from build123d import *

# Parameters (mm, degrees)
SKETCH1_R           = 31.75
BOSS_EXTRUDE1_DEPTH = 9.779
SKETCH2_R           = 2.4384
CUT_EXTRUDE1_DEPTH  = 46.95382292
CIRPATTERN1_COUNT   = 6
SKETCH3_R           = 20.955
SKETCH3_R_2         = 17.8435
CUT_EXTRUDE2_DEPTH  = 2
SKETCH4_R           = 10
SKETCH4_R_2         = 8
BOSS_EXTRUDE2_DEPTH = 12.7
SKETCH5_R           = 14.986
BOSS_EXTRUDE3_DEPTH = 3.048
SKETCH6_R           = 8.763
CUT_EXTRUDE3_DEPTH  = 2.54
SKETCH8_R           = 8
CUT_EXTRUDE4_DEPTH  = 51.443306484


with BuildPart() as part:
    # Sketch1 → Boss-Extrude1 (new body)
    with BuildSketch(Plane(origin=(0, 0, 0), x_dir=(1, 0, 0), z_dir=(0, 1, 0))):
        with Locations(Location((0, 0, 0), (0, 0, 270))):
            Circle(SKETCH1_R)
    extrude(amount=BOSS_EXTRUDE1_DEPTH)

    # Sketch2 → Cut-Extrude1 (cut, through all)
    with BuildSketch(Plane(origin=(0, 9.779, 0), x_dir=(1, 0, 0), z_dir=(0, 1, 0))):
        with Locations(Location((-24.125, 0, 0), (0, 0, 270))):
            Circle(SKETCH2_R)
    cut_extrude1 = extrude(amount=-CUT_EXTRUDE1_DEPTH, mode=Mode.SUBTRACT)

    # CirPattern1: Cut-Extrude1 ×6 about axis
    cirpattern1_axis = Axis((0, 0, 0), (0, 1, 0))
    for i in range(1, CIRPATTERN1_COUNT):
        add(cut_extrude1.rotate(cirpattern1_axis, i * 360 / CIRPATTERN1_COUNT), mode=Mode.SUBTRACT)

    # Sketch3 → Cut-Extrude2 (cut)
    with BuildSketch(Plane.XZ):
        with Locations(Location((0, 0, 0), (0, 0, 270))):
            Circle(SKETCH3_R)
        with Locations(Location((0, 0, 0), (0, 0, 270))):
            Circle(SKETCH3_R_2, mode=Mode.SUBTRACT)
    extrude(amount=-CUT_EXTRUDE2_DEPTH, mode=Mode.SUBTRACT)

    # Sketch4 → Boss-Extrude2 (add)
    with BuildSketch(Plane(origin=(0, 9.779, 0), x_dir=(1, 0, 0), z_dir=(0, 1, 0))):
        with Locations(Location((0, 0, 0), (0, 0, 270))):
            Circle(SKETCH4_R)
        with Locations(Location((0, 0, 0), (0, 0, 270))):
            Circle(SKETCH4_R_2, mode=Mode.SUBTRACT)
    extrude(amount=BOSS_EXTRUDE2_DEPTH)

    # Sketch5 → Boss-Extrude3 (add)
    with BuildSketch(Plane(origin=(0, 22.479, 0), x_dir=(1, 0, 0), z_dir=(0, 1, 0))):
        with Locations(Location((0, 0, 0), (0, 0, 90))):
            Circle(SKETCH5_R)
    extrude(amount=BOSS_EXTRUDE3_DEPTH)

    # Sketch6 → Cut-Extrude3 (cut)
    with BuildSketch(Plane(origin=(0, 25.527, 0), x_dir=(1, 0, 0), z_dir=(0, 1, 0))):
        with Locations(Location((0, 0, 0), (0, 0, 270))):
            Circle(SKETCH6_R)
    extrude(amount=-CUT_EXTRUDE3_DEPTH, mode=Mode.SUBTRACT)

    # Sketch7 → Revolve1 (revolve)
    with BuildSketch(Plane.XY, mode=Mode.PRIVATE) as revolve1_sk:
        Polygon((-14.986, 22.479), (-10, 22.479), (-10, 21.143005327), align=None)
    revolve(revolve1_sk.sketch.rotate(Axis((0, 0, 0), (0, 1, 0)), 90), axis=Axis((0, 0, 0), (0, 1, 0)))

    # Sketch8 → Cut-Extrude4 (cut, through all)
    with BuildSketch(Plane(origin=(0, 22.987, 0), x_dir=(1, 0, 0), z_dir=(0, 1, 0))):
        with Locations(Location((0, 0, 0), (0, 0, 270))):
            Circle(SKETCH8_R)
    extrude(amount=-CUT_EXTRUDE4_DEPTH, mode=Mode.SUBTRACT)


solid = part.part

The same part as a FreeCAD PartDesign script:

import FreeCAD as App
import Part
import Sketcher
from FreeCAD import Vector
Q = App.Units.Quantity

doc = App.newDocument("Part")
params = doc.addObject("Spreadsheet::Sheet", "Params")
for row, (alias, value) in enumerate([
    ("sketch1_diameter", "2.5 in"),
    ("pad1_length", "0.385 in"),
    ("sketch2_diameter", "0.192 in"),
    ("sketch3_diameter", "1.65 in"),
    ("sketch3_diameter2", "1.405 in"),
    ("pocket2_length", "2 mm"),
    ("pad2_length", "0.5 in"),
    ("sketch5_diameter", "1.18 in"),
    ("pad3_length", "0.12 in"),
    ("sketch6_diameter", "0.69 in"),
    ("pocket3_length", "0.1 in"),
    ("revolution_angle", "360 deg"),
], start=1):
    params.set(f"A{row}", alias)
    params.set(f"B{row}", "=" + value)
    params.setAlias(f"B{row}", alias)

body = doc.addObject("PartDesign::Body", "Body")

# Sketch on XZ plane
sketch1 = body.newObject("Sketcher::SketchObject", "Sketch")
sketch1.AttachmentSupport = (doc.getObject("XZ_Plane"), [""])
sketch1.MapMode = "FlatFace"
sketch1.addGeometry(Part.Circle(Vector(0, 0, 0), Vector(0, 0, 1), 32), False)
sketch1.addConstraint([
    Sketcher.Constraint("Coincident", 0, 3, -1, 1),
    Sketcher.Constraint("Diameter", 0, Q("2.5 in")),
])
sketch1.setExpression("Constraints[1]", "Params.sketch1_diameter")
pad1 = body.newObject("PartDesign::Pad", "Pad")
pad1.Profile = sketch1
pad1.setExpression("Length", "Params.pad1_length")
pad1.Reversed = True

# Sketch on XZ plane
sketch2 = body.newObject("Sketcher::SketchObject", "Sketch001")
sketch2.AttachmentSupport = (doc.getObject("XZ_Plane"), [""])
sketch2.MapMode = "FlatFace"
sketch2.AttachmentOffset = App.Placement(Vector(0, 0, -0.385 * 25.4), App.Rotation())
sketch2.addGeometry(Part.Circle(Vector(-24.1, 0, 0), Vector(0, 0, 1), 2.4), False)
sketch2.addConstraint([
    Sketcher.Constraint("PointOnObject", 0, 3, -1),
    Sketcher.Constraint("Diameter", 0, Q("0.192 in")),
    Sketcher.Constraint("DistanceX", 0, 3, -1, 1, Q("24.125 mm")),
])
sketch2.setExpression("Constraints[1]", "Params.sketch2_diameter")
pocket1 = body.newObject("PartDesign::Pocket", "Pocket")
pocket1.Profile = sketch2
pocket1.Type = "ThroughAll"
pocket1.Reversed = True
doc.recompute()

polarpattern = body.newObject("PartDesign::PolarPattern", "PolarPattern")
polarpattern.Originals = [pocket1]
polarpattern.Axis = (doc.getObject("Y_Axis"), [""])
polarpattern.Angle = 360
polarpattern.Occurrences = 6
body.Tip = polarpattern

# Sketch on XZ plane
sketch3 = body.newObject("Sketcher::SketchObject", "Sketch002")
sketch3.AttachmentSupport = (doc.getObject("XZ_Plane"), [""])
sketch3.MapMode = "FlatFace"
sketch3.addGeometry([
    Part.Circle(Vector(0, 0, 0), Vector(0, 0, 1), 21),
    Part.Circle(Vector(0, 0, 0), Vector(0, 0, 1), 18),
], False)
sketch3.addConstraint([
    Sketcher.Constraint("Coincident", 0, 3, -1, 1),
    Sketcher.Constraint("Coincident", 1, 3, -1, 1),
    Sketcher.Constraint("Diameter", 0, Q("1.65 in")),
    Sketcher.Constraint("Diameter", 1, Q("1.405 in")),
])
sketch3.setExpression("Constraints[2]", "Params.sketch3_diameter")
sketch3.setExpression("Constraints[3]", "Params.sketch3_diameter2")
pocket2 = body.newObject("PartDesign::Pocket", "Pocket001")
pocket2.Profile = sketch3
pocket2.setExpression("Length", "Params.pocket2_length")

# Sketch on XZ plane
sketch4 = body.newObject("Sketcher::SketchObject", "Sketch003")
sketch4.AttachmentSupport = (doc.getObject("XZ_Plane"), [""])
sketch4.MapMode = "FlatFace"
sketch4.AttachmentOffset = App.Placement(Vector(0, 0, -0.385 * 25.4), App.Rotation())
sketch4.addGeometry([
    Part.Circle(Vector(0, 0, 0), Vector(0, 0, 1), 10),
    Part.Circle(Vector(0, 0, 0), Vector(0, 0, 1), 8),
], False)
sketch4.addConstraint([
    Sketcher.Constraint("Coincident", 0, 3, -1, 1),
    Sketcher.Constraint("Coincident", 1, 3, -1, 1),
    Sketcher.Constraint("Diameter", 0, Q("20 mm")),
    Sketcher.Constraint("Diameter", 1, Q("16 mm")),
])
pad2 = body.newObject("PartDesign::Pad", "Pad001")
pad2.Profile = sketch4
pad2.setExpression("Length", "Params.pad2_length")
pad2.Reversed = True

# Sketch on XZ plane
sketch5 = body.newObject("Sketcher::SketchObject", "Sketch004")
sketch5.AttachmentSupport = (doc.getObject("XZ_Plane"), [""])
sketch5.MapMode = "FlatFace"
sketch5.AttachmentOffset = App.Placement(Vector(0, 0, -0.885 * 25.4), App.Rotation())
sketch5.addGeometry(Part.Circle(Vector(0, 0, 0), Vector(0, 0, 1), 15), False)
sketch5.addConstraint([
    Sketcher.Constraint("Coincident", 0, 3, -1, 1),
    Sketcher.Constraint("Diameter", 0, Q("1.18 in")),
])
sketch5.setExpression("Constraints[1]", "Params.sketch5_diameter")
pad3 = body.newObject("PartDesign::Pad", "Pad002")
pad3.Profile = sketch5
pad3.setExpression("Length", "Params.pad3_length")
pad3.Reversed = True

# Sketch on XZ plane
sketch6 = body.newObject("Sketcher::SketchObject", "Sketch005")
sketch6.AttachmentSupport = (doc.getObject("XZ_Plane"), [""])
sketch6.MapMode = "FlatFace"
sketch6.AttachmentOffset = App.Placement(Vector(0, 0, -1.005 * 25.4), App.Rotation())
sketch6.addGeometry(Part.Circle(Vector(0, 0, 0), Vector(0, 0, 1), 9), False)
sketch6.addConstraint([
    Sketcher.Constraint("Coincident", 0, 3, -1, 1),
    Sketcher.Constraint("Diameter", 0, Q("0.69 in")),
])
sketch6.setExpression("Constraints[1]", "Params.sketch6_diameter")
pocket3 = body.newObject("PartDesign::Pocket", "Pocket002")
pocket3.Profile = sketch6
pocket3.setExpression("Length", "Params.pocket3_length")
pocket3.Reversed = True

# Sketch on XY plane
sketch7 = body.newObject("Sketcher::SketchObject", "Sketch006")
sketch7.AttachmentSupport = (doc.getObject("XY_Plane"), [""])
sketch7.MapMode = "FlatFace"
sketch7.addGeometry([
    Part.LineSegment(Vector(-10, 22.5, 0), Vector(-15, 22.5, 0)),
    Part.LineSegment(Vector(-15, 22.5, 0), Vector(-10, 21.1, 0)),
    Part.LineSegment(Vector(-10, 21.1, 0), Vector(-10, 22.5, 0)),
], False)
sketch7.addConstraint([
    Sketcher.Constraint("Coincident", 0, 2, 1, 1),
    Sketcher.Constraint("Coincident", 1, 2, 2, 1),
    Sketcher.Constraint("Coincident", 2, 2, 0, 1),
    Sketcher.Constraint("Horizontal", 0),
    Sketcher.Constraint("Vertical", 2),
    Sketcher.Constraint("Angle", 1, Q("-15 deg")),
    Sketcher.Constraint("DistanceX", 0, 2, -1, 1, Q("0.59 in")),
    Sketcher.Constraint("DistanceY", -1, 1, 0, 2, Q("0.885 in")),
    Sketcher.Constraint("DistanceX", 0, 2, 0, 1, Q("4.986 mm")),
])
revolution = body.newObject("PartDesign::Revolution", "Revolution")
revolution.Profile = sketch7
revolution.ReferenceAxis = (sketch7, ["V_Axis"])
revolution.setExpression("Angle", "Params.revolution_angle")

# Sketch on XZ plane
sketch8 = body.newObject("Sketcher::SketchObject", "Sketch007")
sketch8.AttachmentSupport = (doc.getObject("XZ_Plane"), [""])
sketch8.MapMode = "FlatFace"
sketch8.AttachmentOffset = App.Placement(Vector(0, 0, -0.905 * 25.4), App.Rotation())
sketch8.addGeometry(Part.Circle(Vector(0, 0, 0), Vector(0, 0, 1), 8), False)
sketch8.addConstraint([
    Sketcher.Constraint("Coincident", 0, 3, -1, 1),
    Sketcher.Constraint("Diameter", 0, Q("16 mm")),
])
pocket4 = body.newObject("PartDesign::Pocket", "Pocket003")
pocket4.Profile = sketch8
pocket4.Type = "ThroughAll"
pocket4.Reversed = True

doc.recompute()
